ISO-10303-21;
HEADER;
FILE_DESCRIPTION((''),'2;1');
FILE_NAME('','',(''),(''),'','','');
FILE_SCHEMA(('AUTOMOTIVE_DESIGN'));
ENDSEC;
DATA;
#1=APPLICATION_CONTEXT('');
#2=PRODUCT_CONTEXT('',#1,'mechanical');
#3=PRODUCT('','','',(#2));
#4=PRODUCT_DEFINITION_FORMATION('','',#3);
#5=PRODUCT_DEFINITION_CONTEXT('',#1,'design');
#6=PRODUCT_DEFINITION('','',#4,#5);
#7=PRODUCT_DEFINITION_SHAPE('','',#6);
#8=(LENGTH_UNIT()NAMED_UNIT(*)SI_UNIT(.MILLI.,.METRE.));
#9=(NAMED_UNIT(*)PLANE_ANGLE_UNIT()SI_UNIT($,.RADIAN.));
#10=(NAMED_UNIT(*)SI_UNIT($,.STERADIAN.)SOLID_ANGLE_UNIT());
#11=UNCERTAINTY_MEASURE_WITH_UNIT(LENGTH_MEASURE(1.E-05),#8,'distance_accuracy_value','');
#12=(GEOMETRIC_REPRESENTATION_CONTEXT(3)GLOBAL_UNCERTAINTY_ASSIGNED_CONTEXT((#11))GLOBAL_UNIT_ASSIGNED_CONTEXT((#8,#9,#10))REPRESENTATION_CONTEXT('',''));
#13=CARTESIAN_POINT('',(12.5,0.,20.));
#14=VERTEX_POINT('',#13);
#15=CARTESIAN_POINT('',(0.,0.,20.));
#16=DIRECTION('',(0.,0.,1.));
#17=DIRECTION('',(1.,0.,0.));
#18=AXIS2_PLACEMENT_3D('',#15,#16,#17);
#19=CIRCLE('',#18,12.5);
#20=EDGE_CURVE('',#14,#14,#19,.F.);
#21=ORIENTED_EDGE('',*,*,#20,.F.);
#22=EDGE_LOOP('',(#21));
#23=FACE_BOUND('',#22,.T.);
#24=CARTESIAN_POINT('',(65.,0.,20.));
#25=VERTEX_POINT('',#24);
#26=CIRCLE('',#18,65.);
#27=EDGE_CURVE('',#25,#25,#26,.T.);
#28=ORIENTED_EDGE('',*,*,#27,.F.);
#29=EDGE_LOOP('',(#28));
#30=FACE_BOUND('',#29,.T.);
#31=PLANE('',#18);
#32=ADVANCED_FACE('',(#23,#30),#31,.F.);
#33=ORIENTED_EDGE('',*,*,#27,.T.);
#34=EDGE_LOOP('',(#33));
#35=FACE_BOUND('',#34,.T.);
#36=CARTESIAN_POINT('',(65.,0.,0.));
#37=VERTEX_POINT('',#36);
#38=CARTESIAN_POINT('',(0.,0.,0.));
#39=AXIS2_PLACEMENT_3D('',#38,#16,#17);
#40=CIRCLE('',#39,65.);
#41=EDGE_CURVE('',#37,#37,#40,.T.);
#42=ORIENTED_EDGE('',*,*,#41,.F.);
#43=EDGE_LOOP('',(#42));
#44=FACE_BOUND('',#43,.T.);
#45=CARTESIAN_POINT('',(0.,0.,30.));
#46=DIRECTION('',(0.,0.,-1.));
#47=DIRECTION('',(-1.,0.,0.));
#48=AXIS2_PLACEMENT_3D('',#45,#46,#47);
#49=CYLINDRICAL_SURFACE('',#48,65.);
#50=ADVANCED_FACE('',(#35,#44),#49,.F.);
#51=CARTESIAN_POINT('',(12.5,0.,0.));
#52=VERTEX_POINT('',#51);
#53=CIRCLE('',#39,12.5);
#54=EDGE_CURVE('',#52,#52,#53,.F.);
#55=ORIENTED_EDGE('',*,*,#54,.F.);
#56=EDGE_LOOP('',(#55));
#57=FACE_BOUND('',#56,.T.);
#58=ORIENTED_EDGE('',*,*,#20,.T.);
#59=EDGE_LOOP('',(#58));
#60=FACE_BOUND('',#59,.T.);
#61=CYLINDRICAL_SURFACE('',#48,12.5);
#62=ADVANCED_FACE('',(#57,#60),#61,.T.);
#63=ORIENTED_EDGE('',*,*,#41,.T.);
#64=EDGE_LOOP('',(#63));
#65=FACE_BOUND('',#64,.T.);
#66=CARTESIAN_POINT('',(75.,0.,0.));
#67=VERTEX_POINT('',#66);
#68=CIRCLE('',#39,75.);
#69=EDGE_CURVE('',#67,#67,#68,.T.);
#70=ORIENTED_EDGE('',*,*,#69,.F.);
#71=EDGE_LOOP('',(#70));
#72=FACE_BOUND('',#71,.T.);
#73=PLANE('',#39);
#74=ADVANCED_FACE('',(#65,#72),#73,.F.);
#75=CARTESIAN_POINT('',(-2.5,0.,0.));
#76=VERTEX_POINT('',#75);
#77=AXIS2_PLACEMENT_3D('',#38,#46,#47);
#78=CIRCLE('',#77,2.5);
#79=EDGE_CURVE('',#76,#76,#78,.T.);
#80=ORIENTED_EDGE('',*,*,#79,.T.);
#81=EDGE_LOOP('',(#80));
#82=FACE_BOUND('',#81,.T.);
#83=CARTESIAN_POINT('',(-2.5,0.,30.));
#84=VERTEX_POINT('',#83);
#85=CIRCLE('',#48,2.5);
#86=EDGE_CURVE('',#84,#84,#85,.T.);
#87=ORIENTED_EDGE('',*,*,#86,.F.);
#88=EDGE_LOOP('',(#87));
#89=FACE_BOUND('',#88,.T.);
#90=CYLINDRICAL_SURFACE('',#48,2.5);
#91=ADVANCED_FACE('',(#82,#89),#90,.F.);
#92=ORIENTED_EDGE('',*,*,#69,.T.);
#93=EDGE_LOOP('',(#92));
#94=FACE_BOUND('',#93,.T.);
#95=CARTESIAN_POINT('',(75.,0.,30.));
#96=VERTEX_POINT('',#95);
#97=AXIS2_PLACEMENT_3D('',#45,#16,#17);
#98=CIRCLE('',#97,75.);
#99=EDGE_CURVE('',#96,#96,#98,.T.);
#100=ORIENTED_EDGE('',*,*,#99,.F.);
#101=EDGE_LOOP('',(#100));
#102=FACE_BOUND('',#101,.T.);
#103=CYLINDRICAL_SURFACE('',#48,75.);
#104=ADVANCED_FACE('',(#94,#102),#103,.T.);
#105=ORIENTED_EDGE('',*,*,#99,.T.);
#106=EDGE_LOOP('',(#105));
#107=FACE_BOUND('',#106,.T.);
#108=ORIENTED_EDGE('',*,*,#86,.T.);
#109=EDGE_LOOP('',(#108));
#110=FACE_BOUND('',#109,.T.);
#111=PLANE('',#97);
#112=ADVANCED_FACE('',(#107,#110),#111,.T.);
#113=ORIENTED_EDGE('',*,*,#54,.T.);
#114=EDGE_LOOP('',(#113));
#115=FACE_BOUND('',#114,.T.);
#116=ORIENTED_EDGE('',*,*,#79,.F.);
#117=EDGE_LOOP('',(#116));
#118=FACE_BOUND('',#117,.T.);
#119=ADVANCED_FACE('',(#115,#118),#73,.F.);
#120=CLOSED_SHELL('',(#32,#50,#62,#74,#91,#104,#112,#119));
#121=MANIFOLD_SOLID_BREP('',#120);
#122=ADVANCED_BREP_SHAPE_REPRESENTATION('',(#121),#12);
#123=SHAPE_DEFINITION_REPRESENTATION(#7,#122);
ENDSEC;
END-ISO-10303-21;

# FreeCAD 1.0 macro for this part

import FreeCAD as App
import Part
import Sketcher

V = App.Vector


def faces_at(feature, points):
    """Names of the faces that lie closest to the given points."""
    faces = feature.Shape.Faces
    near = lambda p: min(range(len(faces)), key=lambda i: faces[i].distToShape(Part.Vertex(*p))[0])
    return sorted({f"Face{near(p) + 1}" for p in points})

doc = App.newDocument("Part")
body = doc.addObject("PartDesign::Body", "Body")

# Sketch on XY plane
sketch1 = doc.addObject("Sketcher::SketchObject", "Sketch")
body.addObject(sketch1)
sketch1.AttachmentSupport = (doc.XY_Plane, [""])
sketch1.MapMode = "FlatFace"
sketch1.addGeometry(Part.Circle(V(0, 0, 0), V(0, 0, 1), 75), False)
sketch1.addConstraint([
    Sketcher.Constraint("Coincident", 0, 3, -1, 1),
    Sketcher.Constraint("Diameter", 0, 150.0),
])
pad1 = doc.addObject("PartDesign::Pad", "Pad")
body.addObject(pad1)
pad1.Profile = sketch1
pad1.Length = 30

# Sketch on XY plane
sketch2 = doc.addObject("Sketcher::SketchObject", "Sketch001")
body.addObject(sketch2)
sketch2.AttachmentSupport = (doc.XY_Plane, [""])
sketch2.MapMode = "FlatFace"
sketch2.addGeometry(Part.Circle(V(0, 0, 0), V(0, 0, 1), 2.5), False)
sketch2.addConstraint([
    Sketcher.Constraint("Coincident", 0, 3, -1, 1),
    Sketcher.Constraint("Diameter", 0, 5.0),
])
pocket1 = doc.addObject("PartDesign::Pocket", "Pocket")
body.addObject(pocket1)
pocket1.Profile = sketch2
pocket1.Type = "ThroughAll"
pocket1.Reversed = True
doc.recompute()

thickness = doc.addObject("PartDesign::Thickness", "Thickness")
body.addObject(thickness)
thickness.Base = (pocket1, faces_at(pocket1, [(-30, -30, 0)]))
thickness.Value = 10
thickness.Reversed = True
thickness.Join = "Intersection"

doc.recompute()
